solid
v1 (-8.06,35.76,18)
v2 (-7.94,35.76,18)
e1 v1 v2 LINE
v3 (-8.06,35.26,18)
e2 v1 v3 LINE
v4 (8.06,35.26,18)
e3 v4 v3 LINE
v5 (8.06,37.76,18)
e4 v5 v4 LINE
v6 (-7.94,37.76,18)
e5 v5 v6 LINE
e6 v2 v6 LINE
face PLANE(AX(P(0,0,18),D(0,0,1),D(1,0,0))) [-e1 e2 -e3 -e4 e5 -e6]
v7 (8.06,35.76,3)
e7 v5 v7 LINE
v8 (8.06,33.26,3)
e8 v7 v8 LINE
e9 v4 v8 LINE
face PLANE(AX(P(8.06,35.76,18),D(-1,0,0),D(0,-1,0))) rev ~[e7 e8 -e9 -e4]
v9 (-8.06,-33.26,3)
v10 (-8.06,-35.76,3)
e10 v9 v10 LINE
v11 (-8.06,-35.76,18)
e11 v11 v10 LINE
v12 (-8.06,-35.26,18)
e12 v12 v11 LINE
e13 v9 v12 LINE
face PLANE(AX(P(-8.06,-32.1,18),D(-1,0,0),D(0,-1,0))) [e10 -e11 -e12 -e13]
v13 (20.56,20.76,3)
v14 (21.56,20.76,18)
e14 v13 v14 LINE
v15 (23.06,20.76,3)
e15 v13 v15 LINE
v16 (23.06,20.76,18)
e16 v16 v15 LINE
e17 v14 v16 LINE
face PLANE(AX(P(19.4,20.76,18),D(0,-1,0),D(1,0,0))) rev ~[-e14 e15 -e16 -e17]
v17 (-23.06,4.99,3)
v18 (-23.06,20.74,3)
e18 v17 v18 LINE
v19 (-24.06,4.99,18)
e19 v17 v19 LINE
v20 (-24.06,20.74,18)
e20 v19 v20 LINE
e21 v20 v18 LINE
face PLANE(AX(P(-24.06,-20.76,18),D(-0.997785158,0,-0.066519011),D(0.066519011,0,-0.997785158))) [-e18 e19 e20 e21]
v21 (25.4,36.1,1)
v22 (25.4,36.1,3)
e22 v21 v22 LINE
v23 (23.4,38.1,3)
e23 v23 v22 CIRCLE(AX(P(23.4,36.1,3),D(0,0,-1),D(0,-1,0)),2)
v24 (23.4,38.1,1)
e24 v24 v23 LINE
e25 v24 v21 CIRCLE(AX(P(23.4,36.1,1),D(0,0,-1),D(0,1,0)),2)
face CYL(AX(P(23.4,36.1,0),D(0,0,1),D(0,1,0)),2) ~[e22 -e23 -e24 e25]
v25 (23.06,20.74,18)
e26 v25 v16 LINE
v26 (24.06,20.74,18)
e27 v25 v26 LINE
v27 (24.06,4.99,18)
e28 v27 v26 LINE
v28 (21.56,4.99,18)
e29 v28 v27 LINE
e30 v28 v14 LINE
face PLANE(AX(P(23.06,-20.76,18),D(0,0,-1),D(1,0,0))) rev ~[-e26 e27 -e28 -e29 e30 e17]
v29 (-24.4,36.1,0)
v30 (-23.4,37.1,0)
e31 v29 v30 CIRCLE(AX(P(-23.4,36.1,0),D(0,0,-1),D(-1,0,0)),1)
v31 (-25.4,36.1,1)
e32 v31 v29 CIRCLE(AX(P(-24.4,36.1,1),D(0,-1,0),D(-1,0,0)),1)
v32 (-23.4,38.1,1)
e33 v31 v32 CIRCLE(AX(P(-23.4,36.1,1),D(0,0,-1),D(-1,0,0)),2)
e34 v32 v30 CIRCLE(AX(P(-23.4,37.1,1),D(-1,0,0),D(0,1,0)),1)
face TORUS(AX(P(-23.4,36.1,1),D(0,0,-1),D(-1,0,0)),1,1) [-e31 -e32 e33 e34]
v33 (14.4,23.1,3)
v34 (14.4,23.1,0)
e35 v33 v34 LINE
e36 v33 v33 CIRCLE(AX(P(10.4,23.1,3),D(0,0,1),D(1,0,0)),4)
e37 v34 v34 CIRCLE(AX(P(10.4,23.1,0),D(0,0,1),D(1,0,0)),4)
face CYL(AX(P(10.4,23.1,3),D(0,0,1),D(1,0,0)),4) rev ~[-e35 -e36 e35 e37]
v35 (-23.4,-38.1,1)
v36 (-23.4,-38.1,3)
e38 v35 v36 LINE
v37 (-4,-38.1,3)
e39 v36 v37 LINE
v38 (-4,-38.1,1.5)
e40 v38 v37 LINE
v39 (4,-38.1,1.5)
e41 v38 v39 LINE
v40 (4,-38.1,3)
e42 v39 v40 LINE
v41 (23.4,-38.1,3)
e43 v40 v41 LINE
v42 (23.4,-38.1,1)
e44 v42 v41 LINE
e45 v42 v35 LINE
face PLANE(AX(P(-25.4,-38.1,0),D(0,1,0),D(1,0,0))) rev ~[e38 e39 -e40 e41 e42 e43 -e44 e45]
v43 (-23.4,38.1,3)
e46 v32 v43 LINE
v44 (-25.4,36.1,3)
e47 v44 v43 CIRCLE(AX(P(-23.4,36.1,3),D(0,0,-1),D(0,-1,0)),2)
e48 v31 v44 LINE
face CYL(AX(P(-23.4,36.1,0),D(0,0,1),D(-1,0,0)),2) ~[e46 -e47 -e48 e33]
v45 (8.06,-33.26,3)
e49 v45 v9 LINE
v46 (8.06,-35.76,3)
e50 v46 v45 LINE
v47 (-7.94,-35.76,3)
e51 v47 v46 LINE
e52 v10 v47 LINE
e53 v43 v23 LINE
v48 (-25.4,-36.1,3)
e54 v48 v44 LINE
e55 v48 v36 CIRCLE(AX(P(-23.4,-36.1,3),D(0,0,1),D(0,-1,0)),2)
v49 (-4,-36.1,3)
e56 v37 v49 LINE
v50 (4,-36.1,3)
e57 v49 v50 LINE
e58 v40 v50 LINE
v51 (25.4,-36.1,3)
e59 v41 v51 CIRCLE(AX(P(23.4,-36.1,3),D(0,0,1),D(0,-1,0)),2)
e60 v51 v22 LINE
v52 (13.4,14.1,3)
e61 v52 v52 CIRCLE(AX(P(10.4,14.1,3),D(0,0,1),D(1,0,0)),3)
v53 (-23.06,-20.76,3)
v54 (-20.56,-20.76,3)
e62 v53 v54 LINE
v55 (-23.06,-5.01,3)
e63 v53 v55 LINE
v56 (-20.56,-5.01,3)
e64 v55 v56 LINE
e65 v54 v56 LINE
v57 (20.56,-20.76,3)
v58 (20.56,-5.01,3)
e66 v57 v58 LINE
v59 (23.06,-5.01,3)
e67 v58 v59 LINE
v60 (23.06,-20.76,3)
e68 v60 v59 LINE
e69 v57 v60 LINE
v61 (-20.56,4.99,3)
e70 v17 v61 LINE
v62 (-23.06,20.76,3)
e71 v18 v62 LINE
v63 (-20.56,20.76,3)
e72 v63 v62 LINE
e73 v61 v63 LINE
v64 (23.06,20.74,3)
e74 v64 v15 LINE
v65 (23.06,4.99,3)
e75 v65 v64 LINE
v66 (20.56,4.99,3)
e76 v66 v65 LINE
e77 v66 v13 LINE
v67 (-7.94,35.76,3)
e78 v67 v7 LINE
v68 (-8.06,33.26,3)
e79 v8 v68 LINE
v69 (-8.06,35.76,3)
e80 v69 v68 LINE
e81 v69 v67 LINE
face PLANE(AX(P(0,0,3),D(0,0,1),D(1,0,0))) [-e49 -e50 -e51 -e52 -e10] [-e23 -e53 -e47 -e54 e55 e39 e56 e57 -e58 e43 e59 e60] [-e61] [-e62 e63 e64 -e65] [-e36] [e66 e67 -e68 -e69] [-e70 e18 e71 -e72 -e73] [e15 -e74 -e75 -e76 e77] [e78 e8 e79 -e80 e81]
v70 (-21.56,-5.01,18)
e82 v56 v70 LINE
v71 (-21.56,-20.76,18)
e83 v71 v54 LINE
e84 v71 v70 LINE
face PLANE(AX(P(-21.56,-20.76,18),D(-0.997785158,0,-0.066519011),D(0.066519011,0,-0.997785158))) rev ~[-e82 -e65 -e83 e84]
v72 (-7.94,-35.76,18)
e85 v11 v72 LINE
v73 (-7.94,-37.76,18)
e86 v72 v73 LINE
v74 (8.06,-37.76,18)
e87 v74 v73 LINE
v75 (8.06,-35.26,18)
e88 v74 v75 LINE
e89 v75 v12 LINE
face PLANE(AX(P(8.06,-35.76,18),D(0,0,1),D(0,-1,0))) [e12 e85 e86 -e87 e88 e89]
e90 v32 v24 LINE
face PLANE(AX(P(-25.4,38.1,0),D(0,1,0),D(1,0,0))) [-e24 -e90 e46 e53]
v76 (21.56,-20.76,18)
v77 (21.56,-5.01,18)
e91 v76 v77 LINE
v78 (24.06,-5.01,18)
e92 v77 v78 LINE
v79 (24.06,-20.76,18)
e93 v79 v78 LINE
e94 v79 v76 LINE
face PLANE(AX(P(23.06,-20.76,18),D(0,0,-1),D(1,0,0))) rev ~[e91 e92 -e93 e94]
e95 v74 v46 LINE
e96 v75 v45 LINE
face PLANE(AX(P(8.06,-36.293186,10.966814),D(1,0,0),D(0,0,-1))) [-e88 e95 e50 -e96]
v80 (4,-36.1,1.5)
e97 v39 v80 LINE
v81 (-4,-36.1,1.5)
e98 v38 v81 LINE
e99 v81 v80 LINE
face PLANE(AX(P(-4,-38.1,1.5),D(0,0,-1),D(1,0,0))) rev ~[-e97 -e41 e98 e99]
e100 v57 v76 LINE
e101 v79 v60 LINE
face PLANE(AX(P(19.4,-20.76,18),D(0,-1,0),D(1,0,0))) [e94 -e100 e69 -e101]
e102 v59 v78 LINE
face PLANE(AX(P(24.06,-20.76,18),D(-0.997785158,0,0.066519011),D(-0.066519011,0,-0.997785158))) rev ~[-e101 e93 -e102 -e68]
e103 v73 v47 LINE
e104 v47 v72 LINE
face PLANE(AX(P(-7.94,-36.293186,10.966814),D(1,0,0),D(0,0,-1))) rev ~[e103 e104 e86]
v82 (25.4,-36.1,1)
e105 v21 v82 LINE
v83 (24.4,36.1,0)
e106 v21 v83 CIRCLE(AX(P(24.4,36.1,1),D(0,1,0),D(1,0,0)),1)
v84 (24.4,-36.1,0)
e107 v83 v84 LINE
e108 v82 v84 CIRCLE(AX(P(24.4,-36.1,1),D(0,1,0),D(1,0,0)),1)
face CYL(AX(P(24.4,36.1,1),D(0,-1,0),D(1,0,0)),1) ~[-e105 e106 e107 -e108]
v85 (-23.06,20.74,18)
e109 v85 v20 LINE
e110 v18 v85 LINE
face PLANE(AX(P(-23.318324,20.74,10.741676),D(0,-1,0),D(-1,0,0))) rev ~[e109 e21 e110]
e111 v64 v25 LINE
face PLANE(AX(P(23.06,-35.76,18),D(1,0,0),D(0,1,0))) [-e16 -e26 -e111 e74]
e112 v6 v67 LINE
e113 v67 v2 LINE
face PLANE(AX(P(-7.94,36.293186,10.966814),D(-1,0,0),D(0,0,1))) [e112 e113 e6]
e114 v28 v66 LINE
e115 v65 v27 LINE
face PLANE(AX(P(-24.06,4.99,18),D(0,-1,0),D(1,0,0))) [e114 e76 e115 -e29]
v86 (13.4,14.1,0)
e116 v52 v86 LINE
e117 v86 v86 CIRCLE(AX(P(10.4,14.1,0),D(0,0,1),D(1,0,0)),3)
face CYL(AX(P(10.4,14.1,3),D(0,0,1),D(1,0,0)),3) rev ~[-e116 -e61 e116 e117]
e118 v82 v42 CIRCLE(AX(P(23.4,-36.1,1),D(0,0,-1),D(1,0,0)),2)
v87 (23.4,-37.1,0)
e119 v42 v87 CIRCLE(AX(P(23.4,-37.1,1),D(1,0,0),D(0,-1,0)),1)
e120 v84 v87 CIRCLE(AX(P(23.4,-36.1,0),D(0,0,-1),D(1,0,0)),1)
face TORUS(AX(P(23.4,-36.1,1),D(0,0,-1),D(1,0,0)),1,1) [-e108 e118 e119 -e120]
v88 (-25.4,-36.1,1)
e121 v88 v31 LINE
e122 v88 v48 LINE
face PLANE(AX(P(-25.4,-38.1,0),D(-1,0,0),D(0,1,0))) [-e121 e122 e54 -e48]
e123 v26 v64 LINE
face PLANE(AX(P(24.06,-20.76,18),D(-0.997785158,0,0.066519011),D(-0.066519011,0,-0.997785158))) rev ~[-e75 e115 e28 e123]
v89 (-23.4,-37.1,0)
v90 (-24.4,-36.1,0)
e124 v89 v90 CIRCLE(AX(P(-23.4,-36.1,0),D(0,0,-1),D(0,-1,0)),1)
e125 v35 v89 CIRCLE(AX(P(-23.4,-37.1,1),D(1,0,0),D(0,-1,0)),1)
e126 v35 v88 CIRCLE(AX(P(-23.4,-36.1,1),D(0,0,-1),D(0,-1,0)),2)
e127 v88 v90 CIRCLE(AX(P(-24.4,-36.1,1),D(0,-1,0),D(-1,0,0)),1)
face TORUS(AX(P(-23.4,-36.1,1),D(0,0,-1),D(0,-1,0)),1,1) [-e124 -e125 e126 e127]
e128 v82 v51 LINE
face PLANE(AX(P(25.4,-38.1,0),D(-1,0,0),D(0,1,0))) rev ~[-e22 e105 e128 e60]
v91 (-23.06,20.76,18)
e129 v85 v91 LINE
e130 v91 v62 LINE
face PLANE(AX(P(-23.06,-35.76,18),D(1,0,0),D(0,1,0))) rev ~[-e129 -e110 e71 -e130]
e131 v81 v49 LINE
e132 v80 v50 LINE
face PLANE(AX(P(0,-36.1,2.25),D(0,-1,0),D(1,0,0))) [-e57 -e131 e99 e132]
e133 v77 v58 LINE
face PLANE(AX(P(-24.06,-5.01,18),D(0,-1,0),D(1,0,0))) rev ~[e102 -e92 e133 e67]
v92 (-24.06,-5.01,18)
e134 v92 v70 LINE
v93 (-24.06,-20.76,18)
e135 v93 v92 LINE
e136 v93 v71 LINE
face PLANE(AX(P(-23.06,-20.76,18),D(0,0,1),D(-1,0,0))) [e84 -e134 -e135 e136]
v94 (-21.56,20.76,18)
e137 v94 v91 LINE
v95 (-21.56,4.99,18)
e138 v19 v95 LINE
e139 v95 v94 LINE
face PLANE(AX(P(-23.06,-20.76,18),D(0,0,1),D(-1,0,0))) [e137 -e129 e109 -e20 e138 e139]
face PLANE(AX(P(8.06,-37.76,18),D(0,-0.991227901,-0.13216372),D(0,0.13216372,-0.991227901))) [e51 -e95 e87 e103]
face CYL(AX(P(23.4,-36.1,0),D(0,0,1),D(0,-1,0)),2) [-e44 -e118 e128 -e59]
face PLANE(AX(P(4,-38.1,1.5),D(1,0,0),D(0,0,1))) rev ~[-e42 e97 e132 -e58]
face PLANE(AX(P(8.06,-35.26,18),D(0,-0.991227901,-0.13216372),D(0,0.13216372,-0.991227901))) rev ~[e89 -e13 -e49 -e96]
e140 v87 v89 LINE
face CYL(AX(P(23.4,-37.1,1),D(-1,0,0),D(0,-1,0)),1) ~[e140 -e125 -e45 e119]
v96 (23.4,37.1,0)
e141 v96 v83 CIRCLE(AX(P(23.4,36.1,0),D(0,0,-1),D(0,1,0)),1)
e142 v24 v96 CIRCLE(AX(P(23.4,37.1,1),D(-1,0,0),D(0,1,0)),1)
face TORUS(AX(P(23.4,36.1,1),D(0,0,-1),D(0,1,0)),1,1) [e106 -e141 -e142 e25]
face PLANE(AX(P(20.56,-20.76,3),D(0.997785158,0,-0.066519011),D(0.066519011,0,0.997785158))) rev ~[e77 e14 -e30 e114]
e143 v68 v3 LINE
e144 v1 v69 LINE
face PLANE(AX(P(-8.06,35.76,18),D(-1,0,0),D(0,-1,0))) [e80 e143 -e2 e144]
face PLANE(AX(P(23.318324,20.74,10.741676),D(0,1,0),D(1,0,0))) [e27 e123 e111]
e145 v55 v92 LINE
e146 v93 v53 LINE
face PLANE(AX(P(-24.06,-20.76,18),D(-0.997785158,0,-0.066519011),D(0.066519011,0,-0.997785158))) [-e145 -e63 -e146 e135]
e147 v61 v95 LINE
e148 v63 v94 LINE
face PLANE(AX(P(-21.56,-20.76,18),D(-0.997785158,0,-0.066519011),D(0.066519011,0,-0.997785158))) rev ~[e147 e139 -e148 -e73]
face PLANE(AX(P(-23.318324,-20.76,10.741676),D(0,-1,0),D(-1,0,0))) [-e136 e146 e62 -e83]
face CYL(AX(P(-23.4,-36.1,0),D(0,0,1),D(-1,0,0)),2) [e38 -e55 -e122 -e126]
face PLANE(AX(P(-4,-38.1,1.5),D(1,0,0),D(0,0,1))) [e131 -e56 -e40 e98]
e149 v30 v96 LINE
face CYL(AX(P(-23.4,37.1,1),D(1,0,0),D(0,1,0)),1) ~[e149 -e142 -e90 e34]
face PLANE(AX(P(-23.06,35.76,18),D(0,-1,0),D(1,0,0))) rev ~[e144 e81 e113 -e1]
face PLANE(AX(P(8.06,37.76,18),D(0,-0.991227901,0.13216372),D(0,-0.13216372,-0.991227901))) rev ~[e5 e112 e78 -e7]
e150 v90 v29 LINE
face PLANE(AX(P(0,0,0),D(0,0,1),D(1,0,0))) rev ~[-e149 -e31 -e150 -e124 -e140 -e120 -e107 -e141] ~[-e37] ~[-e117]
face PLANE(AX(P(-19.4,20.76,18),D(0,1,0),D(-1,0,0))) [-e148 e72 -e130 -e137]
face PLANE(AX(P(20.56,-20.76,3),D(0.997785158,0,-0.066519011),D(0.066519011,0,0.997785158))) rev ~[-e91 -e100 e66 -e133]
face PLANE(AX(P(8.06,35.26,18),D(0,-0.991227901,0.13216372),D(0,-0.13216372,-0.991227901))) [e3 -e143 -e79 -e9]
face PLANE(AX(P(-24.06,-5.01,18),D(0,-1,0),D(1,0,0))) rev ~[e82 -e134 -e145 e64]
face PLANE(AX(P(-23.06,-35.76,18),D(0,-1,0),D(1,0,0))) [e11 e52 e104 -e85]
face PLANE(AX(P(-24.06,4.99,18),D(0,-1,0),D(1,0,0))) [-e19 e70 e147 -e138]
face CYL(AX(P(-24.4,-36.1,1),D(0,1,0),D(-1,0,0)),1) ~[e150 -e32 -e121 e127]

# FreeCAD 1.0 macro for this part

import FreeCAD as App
import Part
import Sketcher

V = App.Vector


def edges_at(feature, points):
    """Names of the edges that pass closest to the given points."""
    edges = feature.Shape.Edges
    near = lambda p: min(range(len(edges)), key=lambda i: edges[i].distToShape(Part.Vertex(*p))[0])
    return sorted({f"Edge{near(p) + 1}" for p in points})

doc = App.newDocument("Part")
body = doc.addObject("PartDesign::Body", "Body")

# Sketch on XY plane
sketch1 = body.newObject("Sketcher::SketchObject", "Sketch")
sketch1.AttachmentSupport = (doc.getObject("XY_Plane"), [""])
sketch1.MapMode = "FlatFace"
sketch1.addGeometry([
    Part.LineSegment(V(-25.4, 38.1, 0), V(-25.4, -38.1, 0)),
    Part.LineSegment(V(-25.4, -38.1, 0), V(25.4, -38.1, 0)),
    Part.LineSegment(V(25.4, -38.1, 0), V(25.4, 38.1, 0)),
    Part.LineSegment(V(25.4, 38.1, 0), V(-25.4, 38.1, 0)),
], False)
sketch1.addConstraint([
    Sketcher.Constraint("Coincident", 0, 2, 1, 1),
    Sketcher.Constraint("Coincident", 1, 2, 2, 1),
    Sketcher.Constraint("Coincident", 2, 2, 3, 1),
    Sketcher.Constraint("Coincident", 3, 2, 0, 1),
    Sketcher.Constraint("Vertical", 0),
    Sketcher.Constraint("Horizontal", 1),
    Sketcher.Constraint("Vertical", 2),
    Sketcher.Constraint("Horizontal", 3),
    Sketcher.Constraint("Symmetric", 0, 2, 2, 2, -1, 1),
    Sketcher.Constraint("DistanceX", 1, 1, 1, 2, 50.8),
    Sketcher.Constraint("DistanceY", 0, 2, 0, 1, 76.2),
])
pad1 = body.newObject("PartDesign::Pad", "Pad")
pad1.Profile = sketch1
pad1.Length = 18

# Sketch on XY plane
sketch2 = body.newObject("Sketcher::SketchObject", "Sketch001")
sketch2.AttachmentSupport = (doc.getObject("XY_Plane"), [""])
sketch2.MapMode = "FlatFace"
sketch2.AttachmentOffset = App.Placement(V(0, 0, 18), App.Rotation())
sketch2.addGeometry([
    Part.LineSegment(V(-25.4, 38.1, 0), V(-25.4, -38.1, 0)),  # 0
    Part.LineSegment(V(-25.4, -38.1, 0), V(25.4, -38.1, 0)),  # 1
    Part.LineSegment(V(25.4, -38.1, 0), V(25.4, 38.1, 0)),  # 2
    Part.LineSegment(V(25.4, 38.1, 0), V(-25.4, 38.1, 0)),  # 3
    Part.LineSegment(V(23.06, -35.76, 0), V(-23.06, -35.76, 0)),  # 4
    Part.LineSegment(V(-23.06, -35.76, 0), V(-23.06, 35.76, 0)),  # 5
    Part.LineSegment(V(-23.06, 35.76, 0), V(23.06, 35.76, 0)),  # 6
    Part.LineSegment(V(23.06, 35.76, 0), V(23.06, -35.76, 0)),  # 7
    Part.LineSegment(V(-19.4, 32.1, 0), V(-19.4, -32.1, 0)),  # 8
    Part.LineSegment(V(-19.4, -32.1, 0), V(19.4, -32.1, 0)),  # 9
    Part.LineSegment(V(19.4, -32.1, 0), V(19.4, 32.1, 0)),  # 10
    Part.LineSegment(V(19.4, 32.1, 0), V(-19.4, 32.1, 0)),  # 11
], False)
sketch2.addConstraint([
    Sketcher.Constraint("Coincident", 0, 2, 1, 1),
    Sketcher.Constraint("Coincident", 1, 2, 2, 1),
    Sketcher.Constraint("Coincident", 2, 2, 3, 1),
    Sketcher.Constraint("Coincident", 3, 2, 0, 1),
    Sketcher.Constraint("Coincident", 4, 2, 5, 1),
    Sketcher.Constraint("Coincident", 5, 2, 6, 1),
    Sketcher.Constraint("Coincident", 6, 2, 7, 1),
    Sketcher.Constraint("Coincident", 7, 2, 4, 1),
    Sketcher.Constraint("Coincident", 8, 2, 9, 1),
    Sketcher.Constraint("Coincident", 9, 2, 10, 1),
    Sketcher.Constraint("Coincident", 10, 2, 11, 1),
    Sketcher.Constraint("Coincident", 11, 2, 8, 1),
    Sketcher.Constraint("Vertical", 0),
    Sketcher.Constraint("Horizontal", 1),
    Sketcher.Constraint("Vertical", 2),
    Sketcher.Constraint("Horizontal", 3),
    Sketcher.Constraint("Horizontal", 4),
    Sketcher.Constraint("Vertical", 5),
    Sketcher.Constraint("Horizontal", 6),
    Sketcher.Constraint("Vertical", 7),
    Sketcher.Constraint("Vertical", 8),
    Sketcher.Constraint("Horizontal", 9),
    Sketcher.Constraint("Vertical", 10),
    Sketcher.Constraint("Horizontal", 11),
    Sketcher.Constraint("Symmetric", 0, 2, 2, 2, -1, 1),
    Sketcher.Constraint("Symmetric", 4, 2, 6, 2, -1, 1),
    Sketcher.Constraint("Symmetric", 8, 2, 10, 2, -1, 1),
    Sketcher.Constraint("DistanceX", 1, 1, 1, 2, 50.8),
    Sketcher.Constraint("DistanceX", 9, 1, 9, 2, 38.8),
    Sketcher.Constraint("DistanceY", 0, 2, 0, 1, 76.2),
    Sketcher.Constraint("DistanceY", 8, 2, 8, 1, 64.2),
    Sketcher.Constraint("DistanceX", 4, 2, 4, 1, 46.12),
    Sketcher.Constraint("DistanceY", 5, 1, 5, 2, 71.52),
])
pocket1 = body.newObject("PartDesign::Pocket", "Pocket")
pocket1.Profile = sketch2
pocket1.Length = 15

# Sketch on XY plane
sketch3 = body.newObject("Sketcher::SketchObject", "Sketch002")
sketch3.AttachmentSupport = (doc.getObject("XY_Plane"), [""])
sketch3.MapMode = "FlatFace"
sketch3.AttachmentOffset = App.Placement(V(0, 0, 18), App.Rotation())
sketch3.addGeometry([
    Part.LineSegment(V(-8.06, 35.76, 0), V(-23.06, 35.76, 0)),  # 0
    Part.LineSegment(V(-23.06, 35.76, 0), V(-23.06, 20.76, 0)),  # 1
    Part.LineSegment(V(-23.06, 20.76, 0), V(-19.4, 20.76, 0)),  # 2
    Part.LineSegment(V(-19.4, 20.76, 0), V(-19.4, 32.1, 0)),  # 3
    Part.LineSegment(V(-19.4, 32.1, 0), V(-8.06, 32.1, 0)),  # 4
    Part.LineSegment(V(-8.06, 32.1, 0), V(-8.06, 35.76, 0)),  # 5
    Part.LineSegment(V(23.06, 35.76, 0), V(8.06, 35.76, 0)),  # 6
    Part.LineSegment(V(8.06, 35.76, 0), V(8.06, 32.1, 0)),  # 7
    Part.LineSegment(V(8.06, 32.1, 0), V(19.4, 32.1, 0)),  # 8
    Part.LineSegment(V(19.4, 32.1, 0), V(19.4, 20.76, 0)),  # 9
    Part.LineSegment(V(19.4, 20.76, 0), V(23.06, 20.76, 0)),  # 10
    Part.LineSegment(V(23.06, 20.76, 0), V(23.06, 35.76, 0)),  # 11
    Part.LineSegment(V(-23.06, -20.76, 0), V(-23.06, -35.76, 0)),  # 12
    Part.LineSegment(V(-23.06, -35.76, 0), V(-8.06, -35.76, 0)),  # 13
    Part.LineSegment(V(-8.06, -35.76, 0), V(-8.06, -32.1, 0)),  # 14
    Part.LineSegment(V(-8.06, -32.1, 0), V(-19.4, -32.1, 0)),  # 15
    Part.LineSegment(V(-19.4, -32.1, 0), V(-19.4, -20.76, 0)),  # 16
    Part.LineSegment(V(-19.4, -20.76, 0), V(-23.06, -20.76, 0)),  # 17
    Part.LineSegment(V(8.06, -35.76, 0), V(23.06, -35.76, 0)),  # 18
    Part.LineSegment(V(23.06, -35.76, 0), V(23.06, -20.76, 0)),  # 19
    Part.LineSegment(V(23.06, -20.76, 0), V(19.4, -20.76, 0)),  # 20
    Part.LineSegment(V(19.4, -20.76, 0), V(19.4, -32.1, 0)),  # 21
    Part.LineSegment(V(19.4, -32.1, 0), V(8.06, -32.1, 0)),  # 22
    Part.LineSegment(V(8.06, -32.1, 0), V(8.06, -35.76, 0)),  # 23
], False)
sketch3.addConstraint([
    Sketcher.Constraint("Coincident", 0, 2, 1, 1),
    Sketcher.Constraint("Coincident", 1, 2, 2, 1),
    Sketcher.Constraint("Coincident", 2, 2, 3, 1),
    Sketcher.Constraint("Coincident", 3, 2, 4, 1),
    Sketcher.Constraint("Coincident", 4, 2, 5, 1),
    Sketcher.Constraint("Coincident", 5, 2, 0, 1),
    Sketcher.Constraint("Coincident", 6, 2, 7, 1),
    Sketcher.Constraint("Coincident", 7, 2, 8, 1),
    Sketcher.Constraint("Coincident", 8, 2, 9, 1),
    Sketcher.Constraint("Coincident", 9, 2, 10, 1),
    Sketcher.Constraint("Coincident", 10, 2, 11, 1),
    Sketcher.Constraint("Coincident", 11, 2, 6, 1),
    Sketcher.Constraint("Coincident", 12, 2, 13, 1),
    Sketcher.Constraint("Coincident", 13, 2, 14, 1),
    Sketcher.Constraint("Coincident", 14, 2, 15, 1),
    Sketcher.Constraint("Coincident", 15, 2, 16, 1),
    Sketcher.Constraint("Coincident", 16, 2, 17, 1),
    Sketcher.Constraint("Coincident", 17, 2, 12, 1),
    Sketcher.Constraint("Coincident", 18, 2, 19, 1),
    Sketcher.Constraint("Coincident", 19, 2, 20, 1),
    Sketcher.Constraint("Coincident", 20, 2, 21, 1),
    Sketcher.Constraint("Coincident", 21, 2, 22, 1),
    Sketcher.Constraint("Coincident", 22, 2, 23, 1),
    Sketcher.Constraint("Coincident", 23, 2, 18, 1),
    Sketcher.Constraint("Horizontal", 0),
    Sketcher.Constraint("Vertical", 1),
    Sketcher.Constraint("Horizontal", 2),
    Sketcher.Constraint("Vertical", 3),
    Sketcher.Constraint("Horizontal", 4),
    Sketcher.Constraint("Vertical", 5),
    Sketcher.Constraint("Horizontal", 6),
    Sketcher.Constraint("Vertical", 7),
    Sketcher.Constraint("Horizontal", 8),
    Sketcher.Constraint("Vertical", 9),
    Sketcher.Constraint("Horizontal", 10),
    Sketcher.Constraint("Vertical", 11),
    Sketcher.Constraint("Vertical", 12),
    Sketcher.Constraint("Horizontal", 13),
    Sketcher.Constraint("Vertical", 14),
    Sketcher.Constraint("Horizontal", 15),
    Sketcher.Constraint("Vertical", 16),
    Sketcher.Constraint("Horizontal", 17),
    Sketcher.Constraint("Horizontal", 18),
    Sketcher.Constraint("Vertical", 19),
    Sketcher.Constraint("Horizontal", 20),
    Sketcher.Constraint("Vertical", 21),
    Sketcher.Constraint("Horizontal", 22),
    Sketcher.Constraint("Vertical", 23),
    Sketcher.Constraint("Symmetric", 11, 2, 12, 2, -1, 1),
    Sketcher.Constraint("Symmetric", 7, 2, 14, 2, -1, 1),
    Sketcher.Constraint("Symmetric", 9, 2, 16, 2, -1, 1),
    Sketcher.Constraint("Symmetric", 0, 2, 18, 2, -1, 1),
    Sketcher.Constraint("Symmetric", 2, 2, 20, 2, -1, 1),
    Sketcher.Constraint("Symmetric", 4, 2, 22, 2, -1, 1),
    Sketcher.Constraint("Symmetric", 5, 2, 6, 2, -2),
    Sketcher.Constraint("Symmetric", 3, 2, 8, 2, -2),
    Sketcher.Constraint("Symmetric", 1, 2, 10, 2, -2),
    Sketcher.Constraint("Equal", 18, 1),
    Sketcher.Constraint("Equal", 22, 3),
    Sketcher.Constraint("DistanceX", 0, 2, 0, 1, 15.0),
    Sketcher.Constraint("DistanceX", 2, 1, 2, 2, 3.66),
    Sketcher.Constraint("DistanceX", 2, 2, -1, 1, 19.4),
    Sketcher.Constraint("DistanceY", -1, 1, 3, 2, 32.1),
])
pocket2 = body.newObject("PartDesign::Pocket", "Pocket001")
pocket2.Profile = sketch3
pocket2.Length = 15

# Sketch on XZ plane
sketch4 = body.newObject("Sketcher::SketchObject", "Sketch003")
sketch4.AttachmentSupport = (doc.getObject("XZ_Plane"), [""])
sketch4.MapMode = "FlatFace"
sketch4.AttachmentOffset = App.Placement(V(0, 0, 20.76), App.Rotation())
sketch4.addGeometry([
    Part.LineSegment(V(-23.06, 18, 0), V(-24.06, 18, 0)),  # 0
    Part.LineSegment(V(-24.06, 18, 0), V(-23.06, 3, 0)),  # 1
    Part.LineSegment(V(-23.06, 3, 0), V(-23.06, 18, 0)),  # 2
    Part.LineSegment(V(24.06, 18, 0), V(23.06, 18, 0)),  # 3
    Part.LineSegment(V(23.06, 18, 0), V(23.06, 3, 0)),  # 4
    Part.LineSegment(V(23.06, 3, 0), V(24.06, 18, 0)),  # 5
], False)
sketch4.addConstraint([
    Sketcher.Constraint("Coincident", 0, 2, 1, 1),
    Sketcher.Constraint("Coincident", 1, 2, 2, 1),
    Sketcher.Constraint("Coincident", 2, 2, 0, 1),
    Sketcher.Constraint("Coincident", 3, 2, 4, 1),
    Sketcher.Constraint("Coincident", 4, 2, 5, 1),
    Sketcher.Constraint("Coincident", 5, 2, 3, 1),
    Sketcher.Constraint("Horizontal", 0),
    Sketcher.Constraint("Vertical", 2),
    Sketcher.Constraint("Horizontal", 3),
    Sketcher.Constraint("Vertical", 4),
    Sketcher.Constraint("Symmetric", 2, 2, 3, 2, -2),
    Sketcher.Constraint("Horizontal", 1, 2, 4, 2),
    Sketcher.Constraint("Equal", 0, 3),
    Sketcher.Constraint("DistanceX", 0, 2, 0, 1, 1.0),
    Sketcher.Constraint("DistanceY", 2, 1, 2, 2, 15.0),
    Sketcher.Constraint("DistanceY", -1, 1, 0, 2, 18.0),
    Sketcher.Constraint("DistanceX", 0, 2, -1, 1, 24.06),
])
pad2 = body.newObject("PartDesign::Pad", "Pad001")
pad2.Profile = sketch4
pad2.Length = 41.5
pad2.Reversed = True

# Sketch on XZ plane
sketch5 = body.newObject("Sketcher::SketchObject", "Sketch004")
sketch5.AttachmentSupport = (doc.getObject("XZ_Plane"), [""])
sketch5.MapMode = "FlatFace"
sketch5.AttachmentOffset = App.Placement(V(0, 0, 20.76), App.Rotation())
sketch5.addGeometry([
    Part.LineSegment(V(-19.4, 18, 0), V(-21.56, 18, 0)),
    Part.LineSegment(V(-21.56, 18, 0), V(-20.56, 3, 0)),
    Part.LineSegment(V(-20.56, 3, 0), V(-19.4, 3, 0)),
    Part.LineSegment(V(-19.4, 3, 0), V(-19.4, 18, 0)),
], False)
sketch5.addConstraint([
    Sketcher.Constraint("Coincident", 0, 2, 1, 1),
    Sketcher.Constraint("Coincident", 1, 2, 2, 1),
    Sketcher.Constraint("Coincident", 2, 2, 3, 1),
    Sketcher.Constraint("Coincident", 3, 2, 0, 1),
    Sketcher.Constraint("Horizontal", 0),
    Sketcher.Constraint("Horizontal", 2),
    Sketcher.Constraint("Vertical", 3),
    Sketcher.Constraint("DistanceY", 3, 1, 3, 2, 15.0),
    Sketcher.Constraint("DistanceY", -1, 1, 0, 2, 18.0),
    Sketcher.Constraint("DistanceX", 0, 2, 1, 2, 1.0),
    Sketcher.Constraint("DistanceX", 0, 2, 0, 1, 2.16),
    Sketcher.Constraint("DistanceX", 2, 2, -1, 1, 19.4),
])
pocket3 = body.newObject("PartDesign::Pocket", "Pocket002")
pocket3.Profile = sketch5
pocket3.Length = 51.5

# Sketch on XZ plane
sketch6 = body.newObject("Sketcher::SketchObject", "Sketch005")
sketch6.AttachmentSupport = (doc.getObject("XZ_Plane"), [""])
sketch6.MapMode = "FlatFace"
sketch6.AttachmentOffset = App.Placement(V(0, 0, 20.76), App.Rotation())
sketch6.addGeometry([
    Part.LineSegment(V(19.4, 18, 0), V(19.4, 3, 0)),
    Part.LineSegment(V(19.4, 3, 0), V(20.56, 3, 0)),
    Part.LineSegment(V(20.56, 3, 0), V(21.56, 18, 0)),
    Part.LineSegment(V(21.56, 18, 0), V(19.4, 18, 0)),
], False)
sketch6.addConstraint([
    Sketcher.Constraint("Coincident", 0, 2, 1, 1),
    Sketcher.Constraint("Coincident", 1, 2, 2, 1),
    Sketcher.Constraint("Coincident", 2, 2, 3, 1),
    Sketcher.Constraint("Coincident", 3, 2, 0, 1),
    Sketcher.Constraint("Vertical", 0),
    Sketcher.Constraint("Horizontal", 1),
    Sketcher.Constraint("Horizontal", 3),
    Sketcher.Constraint("DistanceY", 0, 2, 0, 1, 15.0),
    Sketcher.Constraint("DistanceY", -1, 1, 0, 2, 3.0),
    Sketcher.Constraint("DistanceX", 1, 2, 2, 2, 1.0),
    Sketcher.Constraint("DistanceX", 1, 1, 1, 2, 1.16),
    Sketcher.Constraint("DistanceX", -1, 1, 0, 2, 19.4),
])
pocket4 = body.newObject("PartDesign::Pocket", "Pocket003")
pocket4.Profile = sketch6
pocket4.Length = 51.5

# Sketch on YZ plane
sketch7 = body.newObject("Sketcher::SketchObject", "Sketch006")
sketch7.AttachmentSupport = (doc.getObject("YZ_Plane"), [""])
sketch7.MapMode = "FlatFace"
sketch7.AttachmentOffset = App.Placement(V(0, 0, 8.06), App.Rotation())
sketch7.addGeometry([
    Part.LineSegment(V(-35.76, 18, 0), V(-37.76, 18, 0)),  # 0
    Part.LineSegment(V(-37.76, 18, 0), V(-35.76, 3, 0)),  # 1
    Part.LineSegment(V(-35.76, 3, 0), V(-35.76, 18, 0)),  # 2
    Part.LineSegment(V(37.76, 18, 0), V(35.76, 18, 0)),  # 3
    Part.LineSegment(V(35.76, 18, 0), V(35.76, 3, 0)),  # 4
    Part.LineSegment(V(35.76, 3, 0), V(37.76, 18, 0)),  # 5
], False)
sketch7.addConstraint([
    Sketcher.Constraint("Coincident", 0, 2, 1, 1),
    Sketcher.Constraint("Coincident", 1, 2, 2, 1),
    Sketcher.Constraint("Coincident", 2, 2, 0, 1),
    Sketcher.Constraint("Coincident", 3, 2, 4, 1),
    Sketcher.Constraint("Coincident", 4, 2, 5, 1),
    Sketcher.Constraint("Coincident", 5, 2, 3, 1),
    Sketcher.Constraint("Horizontal", 0),
    Sketcher.Constraint("Vertical", 2),
    Sketcher.Constraint("Horizontal", 3),
    Sketcher.Constraint("Vertical", 4),
    Sketcher.Constraint("Symmetric", 2, 2, 3, 2, -2),
    Sketcher.Constraint("Horizontal", 1, 2, 4, 2),
    Sketcher.Constraint("Equal", 0, 3),
    Sketcher.Constraint("DistanceX", 0, 2, 0, 1, 2.0),
    Sketcher.Constraint("DistanceY", 2, 1, 2, 2, 15.0),
    Sketcher.Constraint("DistanceY", -1, 1, 0, 2, 18.0),
    Sketcher.Constraint("DistanceX", 0, 2, -1, 1, 37.76),
])
pad3 = body.newObject("PartDesign::Pad", "Pad002")
pad3.Profile = sketch7
pad3.Length = 16
pad3.Reversed = True

# Sketch on YZ plane
sketch8 = body.newObject("Sketcher::SketchObject", "Sketch007")
sketch8.AttachmentSupport = (doc.getObject("YZ_Plane"), [""])
sketch8.MapMode = "FlatFace"
sketch8.AttachmentOffset = App.Placement(V(0, 0, 8.06), App.Rotation())
sketch8.addGeometry([
    Part.LineSegment(V(-32.1, 3, 0), V(-32.1, 18, 0)),  # 0
    Part.LineSegment(V(-32.1, 18, 0), V(-35.26, 18, 0)),  # 1
    Part.LineSegment(V(-35.26, 18, 0), V(-33.26, 3, 0)),  # 2
    Part.LineSegment(V(-33.26, 3, 0), V(-32.1, 3, 0)),  # 3
    Part.LineSegment(V(35.26, 18, 0), V(32.1, 18, 0)),  # 4
    Part.LineSegment(V(32.1, 18, 0), V(32.1, 3, 0)),  # 5
    Part.LineSegment(V(32.1, 3, 0), V(33.26, 3, 0)),  # 6
    Part.LineSegment(V(33.26, 3, 0), V(35.26, 18, 0)),  # 7
], False)
sketch8.addConstraint([
    Sketcher.Constraint("Coincident", 0, 2, 1, 1),
    Sketcher.Constraint("Coincident", 1, 2, 2, 1),
    Sketcher.Constraint("Coincident", 2, 2, 3, 1),
    Sketcher.Constraint("Coincident", 3, 2, 0, 1),
    Sketcher.Constraint("Coincident", 4, 2, 5, 1),
    Sketcher.Constraint("Coincident", 5, 2, 6, 1),
    Sketcher.Constraint("Coincident", 6, 2, 7, 1),
    Sketcher.Constraint("Coincident", 7, 2, 4, 1),
    Sketcher.Constraint("Vertical", 0),
    Sketcher.Constraint("Horizontal", 1),
    Sketcher.Constraint("Horizontal", 3),
    Sketcher.Constraint("Horizontal", 4),
    Sketcher.Constraint("Vertical", 5),
    Sketcher.Constraint("Horizontal", 6),
    Sketcher.Constraint("Symmetric", 0, 2, 4, 2, -2),
    Sketcher.Constraint("Symmetric", 2, 2, 6, 2, -2),
    Sketcher.Constraint("Equal", 1, 4),
    Sketcher.Constraint("DistanceY", 0, 1, 0, 2, 15.0),
    Sketcher.Constraint("DistanceY", -1, 1, 0, 2, 18.0),
    Sketcher.Constraint("DistanceX", 1, 2, 2, 2, 2.0),
    Sketcher.Constraint("DistanceX", 1, 2, 1, 1, 3.16),
    Sketcher.Constraint("DistanceX", 0, 2, -1, 1, 32.1),
])
pocket5 = body.newObject("PartDesign::Pocket", "Pocket004")
pocket5.Profile = sketch8
pocket5.Length = 16.5
doc.recompute()

fillet = body.newObject("PartDesign::Fillet", "Fillet")
fillet.Base = (pocket5, edges_at(pocket5, [
    (-25.4, 38.1, 1.5),
    (25.4, 38.1, 1.5),
    (25.4, -38.1, 1.5),
    (-25.4, -38.1, 1.5),
]))
fillet.Radius = 2
doc.recompute()

fillet2 = body.newObject("PartDesign::Fillet", "Fillet001")
fillet2.Base = (fillet, edges_at(fillet, [
    (0, 38.1, 0),
    (-25.4, 0, 0),
    (25.4, 0, 0),
    (0, -38.1, 0),
    (24.814, -37.514, 0),
    (-24.814, -37.514, 0),
    (-24.814, 37.514, 0),
    (24.814, 37.514, 0),
]))
fillet2.Radius = 1

# Sketch on XY plane
sketch9 = body.newObject("Sketcher::SketchObject", "Sketch008")
sketch9.AttachmentSupport = (doc.getObject("XY_Plane"), [""])
sketch9.MapMode = "FlatFace"
sketch9.AttachmentOffset = App.Placement(V(0, 0, 18), App.Rotation())
sketch9.addGeometry([
    Part.LineSegment(V(-24.06, 4.99, 0), V(-24.06, -5.01, 0)),
    Part.LineSegment(V(-24.06, -5.01, 0), V(24.06, -5.01, 0)),
    Part.LineSegment(V(24.06, -5.01, 0), V(24.06, 4.99, 0)),
    Part.LineSegment(V(24.06, 4.99, 0), V(-24.06, 4.99, 0)),
], False)
sketch9.addConstraint([
    Sketcher.Constraint("Coincident", 0, 2, 1, 1),
    Sketcher.Constraint("Coincident", 1, 2, 2, 1),
    Sketcher.Constraint("Coincident", 2, 2, 3, 1),
    Sketcher.Constraint("Coincident", 3, 2, 0, 1),
    Sketcher.Constraint("Vertical", 0),
    Sketcher.Constraint("Horizontal", 1),
    Sketcher.Constraint("Vertical", 2),
    Sketcher.Constraint("Horizontal", 3),
    Sketcher.Constraint("DistanceY", 0, 2, 0, 1, 10.0),
    Sketcher.Constraint("DistanceX", 1, 1, 1, 2, 48.12),
    Sketcher.Constraint("DistanceX", 0, 2, -1, 1, 24.06),
    Sketcher.Constraint("DistanceY", 0, 2, -1, 1, 5.01),
])
pocket6 = body.newObject("PartDesign::Pocket", "Pocket005")
pocket6.Profile = sketch9
pocket6.Length = 15

# Sketch on XZ plane
sketch10 = body.newObject("Sketcher::SketchObject", "Sketch009")
sketch10.AttachmentSupport = (doc.getObject("XZ_Plane"), [""])
sketch10.MapMode = "FlatFace"
sketch10.AttachmentOffset = App.Placement(V(0, 0, 38.1), App.Rotation())
sketch10.addGeometry([
    Part.LineSegment(V(-4, 3, 0), V(-4, 1.5, 0)),
    Part.LineSegment(V(-4, 1.5, 0), V(4, 1.5, 0)),
    Part.LineSegment(V(4, 1.5, 0), V(4, 3, 0)),
    Part.LineSegment(V(4, 3, 0), V(-4, 3, 0)),
], False)
sketch10.addConstraint([
    Sketcher.Constraint("Coincident", 0, 2, 1, 1),
    Sketcher.Constraint("Coincident", 1, 2, 2, 1),
    Sketcher.Constraint("Coincident", 2, 2, 3, 1),
    Sketcher.Constraint("Coincident", 3, 2, 0, 1),
    Sketcher.Constraint("Vertical", 0),
    Sketcher.Constraint("Horizontal", 1),
    Sketcher.Constraint("Vertical", 2),
    Sketcher.Constraint("Horizontal", 3),
    Sketcher.Constraint("DistanceX", 1, 1, 1, 2, 8.0),
    Sketcher.Constraint("DistanceY", 0, 2, 0, 1, 1.5),
    Sketcher.Constraint("DistanceX", 0, 2, -1, 1, 4.0),
    Sketcher.Constraint("DistanceY", -1, 1, 2, 2, 3.0),
])
pocket7 = body.newObject("PartDesign::Pocket", "Pocket006")
pocket7.Profile = sketch10
pocket7.Length = 2

# Sketch on XY plane
sketch11 = body.newObject("Sketcher::SketchObject", "Sketch010")
sketch11.AttachmentSupport = (doc.getObject("XY_Plane"), [""])
sketch11.MapMode = "FlatFace"
sketch11.AttachmentOffset = App.Placement(V(0, 0, 3), App.Rotation())
sketch11.addGeometry([
    Part.Circle(V(10.4, 23.1, 0), V(0, 0, 1), 4),
    Part.Circle(V(10.4, 14.1, 0), V(0, 0, 1), 3),
], False)
sketch11.addConstraint([
    Sketcher.Constraint("Vertical", 0, 3, 1, 3),
    Sketcher.Constraint("Diameter", 0, 8.0),
    Sketcher.Constraint("Diameter", 1, 6.0),
    Sketcher.Constraint("DistanceY", 1, 3, 0, 3, 9.0),
    Sketcher.Constraint("DistanceX", -1, 1, 0, 3, 10.4),
    Sketcher.Constraint("DistanceY", -1, 1, 0, 3, 23.1),
])
pocket8 = body.newObject("PartDesign::Pocket", "Pocket007")
pocket8.Profile = sketch11
pocket8.Length = 10

doc.recompute()
